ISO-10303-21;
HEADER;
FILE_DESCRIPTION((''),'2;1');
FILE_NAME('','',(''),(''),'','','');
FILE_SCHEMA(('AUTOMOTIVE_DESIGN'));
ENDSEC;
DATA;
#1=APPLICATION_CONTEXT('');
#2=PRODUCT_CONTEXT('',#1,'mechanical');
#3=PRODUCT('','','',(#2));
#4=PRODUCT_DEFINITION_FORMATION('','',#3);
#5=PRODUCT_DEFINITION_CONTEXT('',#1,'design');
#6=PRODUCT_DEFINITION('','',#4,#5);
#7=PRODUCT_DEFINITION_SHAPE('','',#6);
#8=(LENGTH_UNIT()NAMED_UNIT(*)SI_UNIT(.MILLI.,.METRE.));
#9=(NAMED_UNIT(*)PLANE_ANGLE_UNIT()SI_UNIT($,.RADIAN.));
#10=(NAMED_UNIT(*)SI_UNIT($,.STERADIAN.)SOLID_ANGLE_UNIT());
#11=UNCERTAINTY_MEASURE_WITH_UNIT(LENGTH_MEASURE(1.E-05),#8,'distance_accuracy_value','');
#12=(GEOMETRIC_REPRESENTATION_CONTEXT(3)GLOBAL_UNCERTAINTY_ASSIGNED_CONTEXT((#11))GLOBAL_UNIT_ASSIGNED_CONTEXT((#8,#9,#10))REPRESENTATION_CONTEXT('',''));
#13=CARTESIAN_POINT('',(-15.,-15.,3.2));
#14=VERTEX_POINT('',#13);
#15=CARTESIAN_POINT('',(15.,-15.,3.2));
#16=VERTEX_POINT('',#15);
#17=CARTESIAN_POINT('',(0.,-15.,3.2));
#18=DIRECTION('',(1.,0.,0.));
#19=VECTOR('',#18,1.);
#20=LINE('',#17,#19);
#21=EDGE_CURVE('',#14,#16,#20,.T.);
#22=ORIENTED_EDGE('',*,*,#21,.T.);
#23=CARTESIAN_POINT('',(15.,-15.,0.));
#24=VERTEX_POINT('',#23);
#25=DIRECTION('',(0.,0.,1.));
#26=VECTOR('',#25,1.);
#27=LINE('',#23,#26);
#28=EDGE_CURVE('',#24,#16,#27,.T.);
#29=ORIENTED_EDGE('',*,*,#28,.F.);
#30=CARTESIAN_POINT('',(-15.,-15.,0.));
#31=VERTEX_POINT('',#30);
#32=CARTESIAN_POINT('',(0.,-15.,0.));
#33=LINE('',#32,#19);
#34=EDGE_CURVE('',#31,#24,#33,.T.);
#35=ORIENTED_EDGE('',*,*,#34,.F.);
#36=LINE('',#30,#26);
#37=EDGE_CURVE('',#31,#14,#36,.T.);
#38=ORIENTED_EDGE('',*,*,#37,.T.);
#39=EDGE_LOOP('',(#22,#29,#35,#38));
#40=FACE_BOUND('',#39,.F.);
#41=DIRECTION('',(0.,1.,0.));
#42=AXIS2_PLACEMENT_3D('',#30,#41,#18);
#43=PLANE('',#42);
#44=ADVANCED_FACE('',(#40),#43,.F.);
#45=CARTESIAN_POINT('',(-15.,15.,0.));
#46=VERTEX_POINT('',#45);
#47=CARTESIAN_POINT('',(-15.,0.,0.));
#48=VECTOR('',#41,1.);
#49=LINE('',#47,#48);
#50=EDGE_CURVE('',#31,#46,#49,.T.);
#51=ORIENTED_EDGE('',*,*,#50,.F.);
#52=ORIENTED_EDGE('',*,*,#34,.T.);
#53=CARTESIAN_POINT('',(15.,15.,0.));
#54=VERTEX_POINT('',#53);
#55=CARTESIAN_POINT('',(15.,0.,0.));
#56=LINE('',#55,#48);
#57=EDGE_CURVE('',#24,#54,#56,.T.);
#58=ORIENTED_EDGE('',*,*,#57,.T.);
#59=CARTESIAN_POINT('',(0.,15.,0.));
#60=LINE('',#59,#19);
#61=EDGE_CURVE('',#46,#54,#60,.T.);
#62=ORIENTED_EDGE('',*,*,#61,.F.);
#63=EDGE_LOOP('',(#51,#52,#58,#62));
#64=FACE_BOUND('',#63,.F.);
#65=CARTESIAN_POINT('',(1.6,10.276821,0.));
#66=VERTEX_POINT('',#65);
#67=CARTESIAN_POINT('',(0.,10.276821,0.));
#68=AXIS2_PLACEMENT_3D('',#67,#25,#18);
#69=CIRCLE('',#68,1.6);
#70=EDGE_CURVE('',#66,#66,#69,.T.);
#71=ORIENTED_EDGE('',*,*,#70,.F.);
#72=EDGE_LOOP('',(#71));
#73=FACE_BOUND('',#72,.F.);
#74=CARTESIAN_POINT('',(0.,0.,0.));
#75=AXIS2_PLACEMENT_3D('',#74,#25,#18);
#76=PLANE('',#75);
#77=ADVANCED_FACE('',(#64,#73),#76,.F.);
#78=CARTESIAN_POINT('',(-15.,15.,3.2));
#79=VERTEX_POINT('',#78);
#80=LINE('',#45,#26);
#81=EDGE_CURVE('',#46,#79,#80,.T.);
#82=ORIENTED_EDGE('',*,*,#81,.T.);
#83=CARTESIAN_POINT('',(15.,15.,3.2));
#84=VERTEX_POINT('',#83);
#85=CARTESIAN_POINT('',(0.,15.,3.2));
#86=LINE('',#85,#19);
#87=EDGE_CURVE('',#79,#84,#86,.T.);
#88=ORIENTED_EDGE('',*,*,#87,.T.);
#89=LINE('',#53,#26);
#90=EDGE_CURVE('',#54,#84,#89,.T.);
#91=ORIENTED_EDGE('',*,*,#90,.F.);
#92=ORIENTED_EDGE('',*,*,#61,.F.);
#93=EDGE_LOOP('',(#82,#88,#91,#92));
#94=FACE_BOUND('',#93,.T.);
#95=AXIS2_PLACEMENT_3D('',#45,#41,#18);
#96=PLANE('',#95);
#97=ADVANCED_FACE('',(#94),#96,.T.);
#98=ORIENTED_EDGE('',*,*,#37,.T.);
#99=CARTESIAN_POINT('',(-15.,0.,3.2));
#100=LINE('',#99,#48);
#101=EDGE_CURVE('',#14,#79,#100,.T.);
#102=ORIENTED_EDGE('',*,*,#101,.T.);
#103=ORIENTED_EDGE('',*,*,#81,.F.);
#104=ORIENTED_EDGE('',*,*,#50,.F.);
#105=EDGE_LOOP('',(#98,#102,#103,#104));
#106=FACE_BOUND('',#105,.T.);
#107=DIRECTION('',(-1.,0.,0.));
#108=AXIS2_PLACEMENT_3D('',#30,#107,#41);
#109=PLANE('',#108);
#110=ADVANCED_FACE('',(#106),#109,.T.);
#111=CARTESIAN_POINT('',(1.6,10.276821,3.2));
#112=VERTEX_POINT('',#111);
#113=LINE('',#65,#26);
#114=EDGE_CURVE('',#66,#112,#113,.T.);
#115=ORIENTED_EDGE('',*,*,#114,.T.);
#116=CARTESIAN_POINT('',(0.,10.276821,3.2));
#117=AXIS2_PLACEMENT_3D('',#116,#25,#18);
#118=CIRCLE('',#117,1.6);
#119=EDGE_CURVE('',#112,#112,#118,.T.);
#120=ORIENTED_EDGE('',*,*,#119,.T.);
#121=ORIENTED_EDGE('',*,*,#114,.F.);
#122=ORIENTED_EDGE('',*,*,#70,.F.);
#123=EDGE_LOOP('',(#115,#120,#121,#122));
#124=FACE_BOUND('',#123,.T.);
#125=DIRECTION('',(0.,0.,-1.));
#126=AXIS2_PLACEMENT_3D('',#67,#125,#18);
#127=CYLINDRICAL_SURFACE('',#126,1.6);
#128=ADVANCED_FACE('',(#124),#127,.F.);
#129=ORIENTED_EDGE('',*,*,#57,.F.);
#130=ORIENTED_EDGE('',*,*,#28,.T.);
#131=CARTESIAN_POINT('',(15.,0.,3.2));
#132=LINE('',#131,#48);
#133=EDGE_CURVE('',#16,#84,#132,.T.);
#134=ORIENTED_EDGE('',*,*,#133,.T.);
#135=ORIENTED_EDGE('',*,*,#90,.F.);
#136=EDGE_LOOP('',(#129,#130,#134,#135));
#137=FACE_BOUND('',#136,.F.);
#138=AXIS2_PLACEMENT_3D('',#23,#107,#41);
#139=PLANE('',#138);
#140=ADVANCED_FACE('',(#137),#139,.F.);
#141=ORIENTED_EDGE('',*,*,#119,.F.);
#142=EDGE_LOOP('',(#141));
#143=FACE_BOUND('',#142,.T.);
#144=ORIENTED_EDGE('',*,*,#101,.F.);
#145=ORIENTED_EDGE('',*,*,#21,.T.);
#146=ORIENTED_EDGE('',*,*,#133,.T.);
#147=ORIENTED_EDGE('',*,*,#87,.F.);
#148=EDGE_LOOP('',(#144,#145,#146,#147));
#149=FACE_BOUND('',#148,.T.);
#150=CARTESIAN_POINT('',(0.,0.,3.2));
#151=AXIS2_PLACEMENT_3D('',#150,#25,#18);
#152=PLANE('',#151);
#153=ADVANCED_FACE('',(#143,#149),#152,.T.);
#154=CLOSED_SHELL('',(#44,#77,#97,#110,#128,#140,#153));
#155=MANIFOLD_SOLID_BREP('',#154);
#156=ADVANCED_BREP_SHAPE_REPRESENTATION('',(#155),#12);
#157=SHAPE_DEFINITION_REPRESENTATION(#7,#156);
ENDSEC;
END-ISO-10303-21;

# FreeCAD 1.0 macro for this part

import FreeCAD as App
import Part
import Sketcher
from FreeCAD import Vector


def add_polygon(sketch, points):
    """Adds a closed chain of lines whose ends are joined by coincident constraints."""
    first, n = sketch.GeometryCount, len(points)
    for a, b in zip(points, points[1:] + points[:1]):
        sketch.addGeometry(Part.LineSegment(App.Vector(*a, 0), App.Vector(*b, 0)), False)
    for i in range(n):
        sketch.addConstraint(Sketcher.Constraint("Coincident", first + i, 2, first + (i + 1) % n, 1))

doc = App.newDocument("Part")
body = doc.addObject("PartDesign::Body", "Body")

sketch1 = doc.addObject("Sketcher::SketchObject", "Sketch")
body.addObject(sketch1)
sketch1.AttachmentSupport = (doc.XY_Plane, [""])
sketch1.MapMode = "FlatFace"
add_polygon(sketch1, [(-15, 15), (-15, -15), (15, -15), (15, 15)])
sketch1.addGeometry(Part.Circle(Vector(0, 10.3, 0), Vector(0, 0, 1), 1.6), False)
sketch1.addConstraint(Sketcher.Constraint("Vertical", 0))
sketch1.addConstraint(Sketcher.Constraint("Horizontal", 1))
sketch1.addConstraint(Sketcher.Constraint("Vertical", 2))
sketch1.addConstraint(Sketcher.Constraint("Horizontal", 3))
sketch1.addConstraint(Sketcher.Constraint("Symmetric", 0, 2, 2, 2, -1, 1))
sketch1.addConstraint(Sketcher.Constraint("PointOnObject", 4, 3, -2))
sketch1.addConstraint(Sketcher.Constraint("Equal", 3, 0))
sketch1.addConstraint(Sketcher.Constraint("Diameter", 4, 3.2))
sketch1.addConstraint(Sketcher.Constraint("DistanceX", 1, 1, 1, 2, 30.0))
sketch1.addConstraint(Sketcher.Constraint("DistanceY", -1, 1, 4, 3, 10.276821))
pad1 = doc.addObject("PartDesign::Pad", "Pad")
body.addObject(pad1)
pad1.Profile = sketch1
pad1.Length = 3.2

sketch2 = doc.addObject("Sketcher::SketchObject", "Sketch001")
body.addObject(sketch2)
sketch2.AttachmentSupport = (doc.XY_Plane, [""])
sketch2.MapMode = "FlatFace"
add_polygon(sketch2, [(-15, 15), (-15, -15), (15, -15), (15, 15)])
sketch2.addGeometry(Part.Circle(Vector(0, 10.3, 0), Vector(0, 0, 1), 1.6), False)
sketch2.addConstraint(Sketcher.Constraint("Vertical", 0))
sketch2.addConstraint(Sketcher.Constraint("Horizontal", 1))
sketch2.addConstraint(Sketcher.Constraint("Vertical", 2))
sketch2.addConstraint(Sketcher.Constraint("Horizontal", 3))
sketch2.addConstraint(Sketcher.Constraint("Symmetric", 0, 2, 2, 2, -1, 1))
sketch2.addConstraint(Sketcher.Constraint("PointOnObject", 4, 3, -2))
sketch2.addConstraint(Sketcher.Constraint("Equal", 3, 0))
sketch2.addConstraint(Sketcher.Constraint("Diameter", 4, 3.2))
sketch2.addConstraint(Sketcher.Constraint("DistanceX", 1, 1, 1, 2, 30.0))
sketch2.addConstraint(Sketcher.Constraint("DistanceY", -1, 1, 4, 3, 10.276821))
pad2 = doc.addObject("PartDesign::Pad", "Pad001")
body.addObject(pad2)
pad2.Profile = sketch2
pad2.Length = 3.2

doc.recompute()
